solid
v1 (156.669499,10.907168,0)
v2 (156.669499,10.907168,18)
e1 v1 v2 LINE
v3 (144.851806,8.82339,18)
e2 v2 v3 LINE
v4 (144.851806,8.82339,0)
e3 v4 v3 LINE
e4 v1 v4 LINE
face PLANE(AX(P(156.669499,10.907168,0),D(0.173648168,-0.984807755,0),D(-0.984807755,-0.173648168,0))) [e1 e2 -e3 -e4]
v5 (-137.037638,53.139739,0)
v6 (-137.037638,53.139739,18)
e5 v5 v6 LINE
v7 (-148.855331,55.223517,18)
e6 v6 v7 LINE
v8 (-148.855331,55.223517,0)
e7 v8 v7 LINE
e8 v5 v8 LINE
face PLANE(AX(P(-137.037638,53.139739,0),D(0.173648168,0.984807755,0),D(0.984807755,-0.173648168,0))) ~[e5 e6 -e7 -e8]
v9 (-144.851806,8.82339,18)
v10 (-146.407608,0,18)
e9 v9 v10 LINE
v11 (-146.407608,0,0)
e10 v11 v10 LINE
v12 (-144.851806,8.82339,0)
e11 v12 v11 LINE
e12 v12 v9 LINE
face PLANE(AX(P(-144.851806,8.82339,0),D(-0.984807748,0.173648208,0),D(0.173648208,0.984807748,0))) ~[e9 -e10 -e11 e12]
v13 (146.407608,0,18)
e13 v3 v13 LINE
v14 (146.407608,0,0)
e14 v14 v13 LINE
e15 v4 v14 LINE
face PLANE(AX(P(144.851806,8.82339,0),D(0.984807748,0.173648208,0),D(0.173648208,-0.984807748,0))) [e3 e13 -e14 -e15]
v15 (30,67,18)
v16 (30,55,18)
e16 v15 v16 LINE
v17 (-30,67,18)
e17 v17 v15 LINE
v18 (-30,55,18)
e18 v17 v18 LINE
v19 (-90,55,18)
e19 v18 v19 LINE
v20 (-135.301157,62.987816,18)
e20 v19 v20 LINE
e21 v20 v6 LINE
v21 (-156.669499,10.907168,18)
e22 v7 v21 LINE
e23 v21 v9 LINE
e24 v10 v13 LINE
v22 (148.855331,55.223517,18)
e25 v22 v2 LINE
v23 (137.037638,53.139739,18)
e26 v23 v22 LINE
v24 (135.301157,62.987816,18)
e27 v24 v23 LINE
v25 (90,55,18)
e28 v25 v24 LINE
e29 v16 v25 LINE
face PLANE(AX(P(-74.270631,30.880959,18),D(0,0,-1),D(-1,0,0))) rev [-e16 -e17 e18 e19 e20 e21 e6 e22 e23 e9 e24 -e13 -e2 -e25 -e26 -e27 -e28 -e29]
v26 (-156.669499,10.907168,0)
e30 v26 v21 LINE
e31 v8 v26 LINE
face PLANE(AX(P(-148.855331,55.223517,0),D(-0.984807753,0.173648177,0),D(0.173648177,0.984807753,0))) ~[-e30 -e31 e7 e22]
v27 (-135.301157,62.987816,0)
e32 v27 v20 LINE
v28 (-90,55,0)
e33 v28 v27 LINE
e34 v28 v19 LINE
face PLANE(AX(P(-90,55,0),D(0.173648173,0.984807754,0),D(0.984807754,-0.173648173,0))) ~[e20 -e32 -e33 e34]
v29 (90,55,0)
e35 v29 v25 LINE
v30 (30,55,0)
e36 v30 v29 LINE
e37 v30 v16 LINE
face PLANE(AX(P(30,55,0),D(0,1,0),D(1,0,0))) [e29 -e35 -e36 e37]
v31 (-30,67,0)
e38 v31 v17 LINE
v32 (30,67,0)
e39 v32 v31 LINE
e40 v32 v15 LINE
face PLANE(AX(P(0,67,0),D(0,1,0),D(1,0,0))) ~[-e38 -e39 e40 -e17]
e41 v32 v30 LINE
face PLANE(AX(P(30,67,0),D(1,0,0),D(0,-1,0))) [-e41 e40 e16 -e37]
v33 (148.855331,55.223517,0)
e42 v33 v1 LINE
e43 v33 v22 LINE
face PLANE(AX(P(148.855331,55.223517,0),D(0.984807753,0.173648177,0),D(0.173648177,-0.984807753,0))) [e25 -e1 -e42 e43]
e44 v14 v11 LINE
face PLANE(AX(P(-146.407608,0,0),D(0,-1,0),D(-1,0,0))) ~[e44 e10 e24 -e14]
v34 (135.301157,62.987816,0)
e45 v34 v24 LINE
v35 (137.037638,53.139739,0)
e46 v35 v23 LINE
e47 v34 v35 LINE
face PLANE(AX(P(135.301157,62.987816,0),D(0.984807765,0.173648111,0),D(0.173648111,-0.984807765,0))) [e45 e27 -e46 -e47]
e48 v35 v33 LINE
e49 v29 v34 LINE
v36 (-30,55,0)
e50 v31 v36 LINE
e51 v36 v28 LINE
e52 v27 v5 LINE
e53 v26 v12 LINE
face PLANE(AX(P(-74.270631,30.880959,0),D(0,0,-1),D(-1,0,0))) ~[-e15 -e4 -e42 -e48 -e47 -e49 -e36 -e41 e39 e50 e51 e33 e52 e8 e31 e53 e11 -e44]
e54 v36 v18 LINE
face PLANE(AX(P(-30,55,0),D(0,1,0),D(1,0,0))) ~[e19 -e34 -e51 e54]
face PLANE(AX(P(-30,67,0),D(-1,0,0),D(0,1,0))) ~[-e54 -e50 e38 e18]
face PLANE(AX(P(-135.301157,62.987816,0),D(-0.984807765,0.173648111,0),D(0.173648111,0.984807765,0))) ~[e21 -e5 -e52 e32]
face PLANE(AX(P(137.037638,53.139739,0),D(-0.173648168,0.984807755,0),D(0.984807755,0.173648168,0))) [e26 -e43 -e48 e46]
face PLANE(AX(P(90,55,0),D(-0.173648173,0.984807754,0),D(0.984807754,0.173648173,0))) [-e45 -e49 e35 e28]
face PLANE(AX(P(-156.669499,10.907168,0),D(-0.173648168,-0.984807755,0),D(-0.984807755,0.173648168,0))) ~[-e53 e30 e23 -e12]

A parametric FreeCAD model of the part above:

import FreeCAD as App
import Part
import Sketcher

V = App.Vector
Q = App.Units.Quantity


def add_polygon(sketch, points):
    """Adds a closed chain of lines whose ends are joined by coincident constraints."""
    first, n = sketch.GeometryCount, len(points)
    for a, b in zip(points, points[1:] + points[:1]):
        sketch.addGeometry(Part.LineSegment(App.Vector(*a, 0), App.Vector(*b, 0)), False)
    for i in range(n):
        sketch.addConstraint(Sketcher.Constraint("Coincident", first + i, 2, first + (i + 1) % n, 1))

doc = App.newDocument("Part")
body = doc.addObject("PartDesign::Body", "Body")

# Sketch on XY plane
sketch1 = body.newObject("Sketcher::SketchObject", "Sketch")
sketch1.AttachmentSupport = (doc.getObject("XY_Plane"), [""])
sketch1.MapMode = "FlatFace"
add_polygon(sketch1, [(30, 67), (0, 67), (0, 0), (146, 0), (145, 9), (157, 11), (149, 55), (137, 53), (135, 63), (90, 55), (30, 55)])  # lines 0-10
sketch1.addConstraint(Sketcher.Constraint("Horizontal", 0))
sketch1.addConstraint(Sketcher.Constraint("Vertical", 1))
sketch1.addConstraint(Sketcher.Constraint("Horizontal", 2))
sketch1.addConstraint(Sketcher.Constraint("Horizontal", 9))
sketch1.addConstraint(Sketcher.Constraint("Vertical", 10))
sketch1.addConstraint(Sketcher.Constraint("Coincident", 1, 2, -1, 1))
sketch1.addConstraint(Sketcher.Constraint("Perpendicular", 3, 4))
sketch1.addConstraint(Sketcher.Constraint("Perpendicular", 4, 5))
sketch1.addConstraint(Sketcher.Constraint("Perpendicular", 5, 6))
sketch1.addConstraint(Sketcher.Constraint("Perpendicular", 6, 7))
sketch1.addConstraint(Sketcher.Constraint("Perpendicular", 7, 8))
sketch1.addConstraint(Sketcher.Constraint("Equal", 4, 6))
sketch1.addConstraint(Sketcher.Constraint("DistanceX", 0, 2, 0, 1, Q("30 mm")))
sketch1.addConstraint(Sketcher.Constraint("DistanceX", 9, 2, 9, 1, Q("60 mm")))
sketch1.addConstraint(Sketcher.Constraint("DistanceY", 1, 2, 1, 1, Q("67 mm")))
sketch1.addConstraint(Sketcher.Constraint("DistanceY", 10, 1, 10, 2, Q("12 mm")))
sketch1.addConstraint(Sketcher.Constraint("Angle", 3, Q("100.000002 deg")))
sketch1.addConstraint(Sketcher.Constraint("Distance", 4, Q("12 mm")))
sketch1.addConstraint(Sketcher.Constraint("Distance", 5, Q("45 mm")))
sketch1.addConstraint(Sketcher.Constraint("Distance", 7, Q("9.999999 mm")))
sketch1.addConstraint(Sketcher.Constraint("Distance", 8, Q("46 mm")))
pad1 = body.newObject("PartDesign::Pad", "Pad")
pad1.Profile = sketch1
pad1.Length = 18
doc.recompute()

mirrored = body.newObject("PartDesign::Mirrored", "Mirrored")
mirrored.Originals = [pad1]
mirrored.MirrorPlane = (doc.getObject("YZ_Plane"), [""])
body.Tip = mirrored

doc.recompute()
